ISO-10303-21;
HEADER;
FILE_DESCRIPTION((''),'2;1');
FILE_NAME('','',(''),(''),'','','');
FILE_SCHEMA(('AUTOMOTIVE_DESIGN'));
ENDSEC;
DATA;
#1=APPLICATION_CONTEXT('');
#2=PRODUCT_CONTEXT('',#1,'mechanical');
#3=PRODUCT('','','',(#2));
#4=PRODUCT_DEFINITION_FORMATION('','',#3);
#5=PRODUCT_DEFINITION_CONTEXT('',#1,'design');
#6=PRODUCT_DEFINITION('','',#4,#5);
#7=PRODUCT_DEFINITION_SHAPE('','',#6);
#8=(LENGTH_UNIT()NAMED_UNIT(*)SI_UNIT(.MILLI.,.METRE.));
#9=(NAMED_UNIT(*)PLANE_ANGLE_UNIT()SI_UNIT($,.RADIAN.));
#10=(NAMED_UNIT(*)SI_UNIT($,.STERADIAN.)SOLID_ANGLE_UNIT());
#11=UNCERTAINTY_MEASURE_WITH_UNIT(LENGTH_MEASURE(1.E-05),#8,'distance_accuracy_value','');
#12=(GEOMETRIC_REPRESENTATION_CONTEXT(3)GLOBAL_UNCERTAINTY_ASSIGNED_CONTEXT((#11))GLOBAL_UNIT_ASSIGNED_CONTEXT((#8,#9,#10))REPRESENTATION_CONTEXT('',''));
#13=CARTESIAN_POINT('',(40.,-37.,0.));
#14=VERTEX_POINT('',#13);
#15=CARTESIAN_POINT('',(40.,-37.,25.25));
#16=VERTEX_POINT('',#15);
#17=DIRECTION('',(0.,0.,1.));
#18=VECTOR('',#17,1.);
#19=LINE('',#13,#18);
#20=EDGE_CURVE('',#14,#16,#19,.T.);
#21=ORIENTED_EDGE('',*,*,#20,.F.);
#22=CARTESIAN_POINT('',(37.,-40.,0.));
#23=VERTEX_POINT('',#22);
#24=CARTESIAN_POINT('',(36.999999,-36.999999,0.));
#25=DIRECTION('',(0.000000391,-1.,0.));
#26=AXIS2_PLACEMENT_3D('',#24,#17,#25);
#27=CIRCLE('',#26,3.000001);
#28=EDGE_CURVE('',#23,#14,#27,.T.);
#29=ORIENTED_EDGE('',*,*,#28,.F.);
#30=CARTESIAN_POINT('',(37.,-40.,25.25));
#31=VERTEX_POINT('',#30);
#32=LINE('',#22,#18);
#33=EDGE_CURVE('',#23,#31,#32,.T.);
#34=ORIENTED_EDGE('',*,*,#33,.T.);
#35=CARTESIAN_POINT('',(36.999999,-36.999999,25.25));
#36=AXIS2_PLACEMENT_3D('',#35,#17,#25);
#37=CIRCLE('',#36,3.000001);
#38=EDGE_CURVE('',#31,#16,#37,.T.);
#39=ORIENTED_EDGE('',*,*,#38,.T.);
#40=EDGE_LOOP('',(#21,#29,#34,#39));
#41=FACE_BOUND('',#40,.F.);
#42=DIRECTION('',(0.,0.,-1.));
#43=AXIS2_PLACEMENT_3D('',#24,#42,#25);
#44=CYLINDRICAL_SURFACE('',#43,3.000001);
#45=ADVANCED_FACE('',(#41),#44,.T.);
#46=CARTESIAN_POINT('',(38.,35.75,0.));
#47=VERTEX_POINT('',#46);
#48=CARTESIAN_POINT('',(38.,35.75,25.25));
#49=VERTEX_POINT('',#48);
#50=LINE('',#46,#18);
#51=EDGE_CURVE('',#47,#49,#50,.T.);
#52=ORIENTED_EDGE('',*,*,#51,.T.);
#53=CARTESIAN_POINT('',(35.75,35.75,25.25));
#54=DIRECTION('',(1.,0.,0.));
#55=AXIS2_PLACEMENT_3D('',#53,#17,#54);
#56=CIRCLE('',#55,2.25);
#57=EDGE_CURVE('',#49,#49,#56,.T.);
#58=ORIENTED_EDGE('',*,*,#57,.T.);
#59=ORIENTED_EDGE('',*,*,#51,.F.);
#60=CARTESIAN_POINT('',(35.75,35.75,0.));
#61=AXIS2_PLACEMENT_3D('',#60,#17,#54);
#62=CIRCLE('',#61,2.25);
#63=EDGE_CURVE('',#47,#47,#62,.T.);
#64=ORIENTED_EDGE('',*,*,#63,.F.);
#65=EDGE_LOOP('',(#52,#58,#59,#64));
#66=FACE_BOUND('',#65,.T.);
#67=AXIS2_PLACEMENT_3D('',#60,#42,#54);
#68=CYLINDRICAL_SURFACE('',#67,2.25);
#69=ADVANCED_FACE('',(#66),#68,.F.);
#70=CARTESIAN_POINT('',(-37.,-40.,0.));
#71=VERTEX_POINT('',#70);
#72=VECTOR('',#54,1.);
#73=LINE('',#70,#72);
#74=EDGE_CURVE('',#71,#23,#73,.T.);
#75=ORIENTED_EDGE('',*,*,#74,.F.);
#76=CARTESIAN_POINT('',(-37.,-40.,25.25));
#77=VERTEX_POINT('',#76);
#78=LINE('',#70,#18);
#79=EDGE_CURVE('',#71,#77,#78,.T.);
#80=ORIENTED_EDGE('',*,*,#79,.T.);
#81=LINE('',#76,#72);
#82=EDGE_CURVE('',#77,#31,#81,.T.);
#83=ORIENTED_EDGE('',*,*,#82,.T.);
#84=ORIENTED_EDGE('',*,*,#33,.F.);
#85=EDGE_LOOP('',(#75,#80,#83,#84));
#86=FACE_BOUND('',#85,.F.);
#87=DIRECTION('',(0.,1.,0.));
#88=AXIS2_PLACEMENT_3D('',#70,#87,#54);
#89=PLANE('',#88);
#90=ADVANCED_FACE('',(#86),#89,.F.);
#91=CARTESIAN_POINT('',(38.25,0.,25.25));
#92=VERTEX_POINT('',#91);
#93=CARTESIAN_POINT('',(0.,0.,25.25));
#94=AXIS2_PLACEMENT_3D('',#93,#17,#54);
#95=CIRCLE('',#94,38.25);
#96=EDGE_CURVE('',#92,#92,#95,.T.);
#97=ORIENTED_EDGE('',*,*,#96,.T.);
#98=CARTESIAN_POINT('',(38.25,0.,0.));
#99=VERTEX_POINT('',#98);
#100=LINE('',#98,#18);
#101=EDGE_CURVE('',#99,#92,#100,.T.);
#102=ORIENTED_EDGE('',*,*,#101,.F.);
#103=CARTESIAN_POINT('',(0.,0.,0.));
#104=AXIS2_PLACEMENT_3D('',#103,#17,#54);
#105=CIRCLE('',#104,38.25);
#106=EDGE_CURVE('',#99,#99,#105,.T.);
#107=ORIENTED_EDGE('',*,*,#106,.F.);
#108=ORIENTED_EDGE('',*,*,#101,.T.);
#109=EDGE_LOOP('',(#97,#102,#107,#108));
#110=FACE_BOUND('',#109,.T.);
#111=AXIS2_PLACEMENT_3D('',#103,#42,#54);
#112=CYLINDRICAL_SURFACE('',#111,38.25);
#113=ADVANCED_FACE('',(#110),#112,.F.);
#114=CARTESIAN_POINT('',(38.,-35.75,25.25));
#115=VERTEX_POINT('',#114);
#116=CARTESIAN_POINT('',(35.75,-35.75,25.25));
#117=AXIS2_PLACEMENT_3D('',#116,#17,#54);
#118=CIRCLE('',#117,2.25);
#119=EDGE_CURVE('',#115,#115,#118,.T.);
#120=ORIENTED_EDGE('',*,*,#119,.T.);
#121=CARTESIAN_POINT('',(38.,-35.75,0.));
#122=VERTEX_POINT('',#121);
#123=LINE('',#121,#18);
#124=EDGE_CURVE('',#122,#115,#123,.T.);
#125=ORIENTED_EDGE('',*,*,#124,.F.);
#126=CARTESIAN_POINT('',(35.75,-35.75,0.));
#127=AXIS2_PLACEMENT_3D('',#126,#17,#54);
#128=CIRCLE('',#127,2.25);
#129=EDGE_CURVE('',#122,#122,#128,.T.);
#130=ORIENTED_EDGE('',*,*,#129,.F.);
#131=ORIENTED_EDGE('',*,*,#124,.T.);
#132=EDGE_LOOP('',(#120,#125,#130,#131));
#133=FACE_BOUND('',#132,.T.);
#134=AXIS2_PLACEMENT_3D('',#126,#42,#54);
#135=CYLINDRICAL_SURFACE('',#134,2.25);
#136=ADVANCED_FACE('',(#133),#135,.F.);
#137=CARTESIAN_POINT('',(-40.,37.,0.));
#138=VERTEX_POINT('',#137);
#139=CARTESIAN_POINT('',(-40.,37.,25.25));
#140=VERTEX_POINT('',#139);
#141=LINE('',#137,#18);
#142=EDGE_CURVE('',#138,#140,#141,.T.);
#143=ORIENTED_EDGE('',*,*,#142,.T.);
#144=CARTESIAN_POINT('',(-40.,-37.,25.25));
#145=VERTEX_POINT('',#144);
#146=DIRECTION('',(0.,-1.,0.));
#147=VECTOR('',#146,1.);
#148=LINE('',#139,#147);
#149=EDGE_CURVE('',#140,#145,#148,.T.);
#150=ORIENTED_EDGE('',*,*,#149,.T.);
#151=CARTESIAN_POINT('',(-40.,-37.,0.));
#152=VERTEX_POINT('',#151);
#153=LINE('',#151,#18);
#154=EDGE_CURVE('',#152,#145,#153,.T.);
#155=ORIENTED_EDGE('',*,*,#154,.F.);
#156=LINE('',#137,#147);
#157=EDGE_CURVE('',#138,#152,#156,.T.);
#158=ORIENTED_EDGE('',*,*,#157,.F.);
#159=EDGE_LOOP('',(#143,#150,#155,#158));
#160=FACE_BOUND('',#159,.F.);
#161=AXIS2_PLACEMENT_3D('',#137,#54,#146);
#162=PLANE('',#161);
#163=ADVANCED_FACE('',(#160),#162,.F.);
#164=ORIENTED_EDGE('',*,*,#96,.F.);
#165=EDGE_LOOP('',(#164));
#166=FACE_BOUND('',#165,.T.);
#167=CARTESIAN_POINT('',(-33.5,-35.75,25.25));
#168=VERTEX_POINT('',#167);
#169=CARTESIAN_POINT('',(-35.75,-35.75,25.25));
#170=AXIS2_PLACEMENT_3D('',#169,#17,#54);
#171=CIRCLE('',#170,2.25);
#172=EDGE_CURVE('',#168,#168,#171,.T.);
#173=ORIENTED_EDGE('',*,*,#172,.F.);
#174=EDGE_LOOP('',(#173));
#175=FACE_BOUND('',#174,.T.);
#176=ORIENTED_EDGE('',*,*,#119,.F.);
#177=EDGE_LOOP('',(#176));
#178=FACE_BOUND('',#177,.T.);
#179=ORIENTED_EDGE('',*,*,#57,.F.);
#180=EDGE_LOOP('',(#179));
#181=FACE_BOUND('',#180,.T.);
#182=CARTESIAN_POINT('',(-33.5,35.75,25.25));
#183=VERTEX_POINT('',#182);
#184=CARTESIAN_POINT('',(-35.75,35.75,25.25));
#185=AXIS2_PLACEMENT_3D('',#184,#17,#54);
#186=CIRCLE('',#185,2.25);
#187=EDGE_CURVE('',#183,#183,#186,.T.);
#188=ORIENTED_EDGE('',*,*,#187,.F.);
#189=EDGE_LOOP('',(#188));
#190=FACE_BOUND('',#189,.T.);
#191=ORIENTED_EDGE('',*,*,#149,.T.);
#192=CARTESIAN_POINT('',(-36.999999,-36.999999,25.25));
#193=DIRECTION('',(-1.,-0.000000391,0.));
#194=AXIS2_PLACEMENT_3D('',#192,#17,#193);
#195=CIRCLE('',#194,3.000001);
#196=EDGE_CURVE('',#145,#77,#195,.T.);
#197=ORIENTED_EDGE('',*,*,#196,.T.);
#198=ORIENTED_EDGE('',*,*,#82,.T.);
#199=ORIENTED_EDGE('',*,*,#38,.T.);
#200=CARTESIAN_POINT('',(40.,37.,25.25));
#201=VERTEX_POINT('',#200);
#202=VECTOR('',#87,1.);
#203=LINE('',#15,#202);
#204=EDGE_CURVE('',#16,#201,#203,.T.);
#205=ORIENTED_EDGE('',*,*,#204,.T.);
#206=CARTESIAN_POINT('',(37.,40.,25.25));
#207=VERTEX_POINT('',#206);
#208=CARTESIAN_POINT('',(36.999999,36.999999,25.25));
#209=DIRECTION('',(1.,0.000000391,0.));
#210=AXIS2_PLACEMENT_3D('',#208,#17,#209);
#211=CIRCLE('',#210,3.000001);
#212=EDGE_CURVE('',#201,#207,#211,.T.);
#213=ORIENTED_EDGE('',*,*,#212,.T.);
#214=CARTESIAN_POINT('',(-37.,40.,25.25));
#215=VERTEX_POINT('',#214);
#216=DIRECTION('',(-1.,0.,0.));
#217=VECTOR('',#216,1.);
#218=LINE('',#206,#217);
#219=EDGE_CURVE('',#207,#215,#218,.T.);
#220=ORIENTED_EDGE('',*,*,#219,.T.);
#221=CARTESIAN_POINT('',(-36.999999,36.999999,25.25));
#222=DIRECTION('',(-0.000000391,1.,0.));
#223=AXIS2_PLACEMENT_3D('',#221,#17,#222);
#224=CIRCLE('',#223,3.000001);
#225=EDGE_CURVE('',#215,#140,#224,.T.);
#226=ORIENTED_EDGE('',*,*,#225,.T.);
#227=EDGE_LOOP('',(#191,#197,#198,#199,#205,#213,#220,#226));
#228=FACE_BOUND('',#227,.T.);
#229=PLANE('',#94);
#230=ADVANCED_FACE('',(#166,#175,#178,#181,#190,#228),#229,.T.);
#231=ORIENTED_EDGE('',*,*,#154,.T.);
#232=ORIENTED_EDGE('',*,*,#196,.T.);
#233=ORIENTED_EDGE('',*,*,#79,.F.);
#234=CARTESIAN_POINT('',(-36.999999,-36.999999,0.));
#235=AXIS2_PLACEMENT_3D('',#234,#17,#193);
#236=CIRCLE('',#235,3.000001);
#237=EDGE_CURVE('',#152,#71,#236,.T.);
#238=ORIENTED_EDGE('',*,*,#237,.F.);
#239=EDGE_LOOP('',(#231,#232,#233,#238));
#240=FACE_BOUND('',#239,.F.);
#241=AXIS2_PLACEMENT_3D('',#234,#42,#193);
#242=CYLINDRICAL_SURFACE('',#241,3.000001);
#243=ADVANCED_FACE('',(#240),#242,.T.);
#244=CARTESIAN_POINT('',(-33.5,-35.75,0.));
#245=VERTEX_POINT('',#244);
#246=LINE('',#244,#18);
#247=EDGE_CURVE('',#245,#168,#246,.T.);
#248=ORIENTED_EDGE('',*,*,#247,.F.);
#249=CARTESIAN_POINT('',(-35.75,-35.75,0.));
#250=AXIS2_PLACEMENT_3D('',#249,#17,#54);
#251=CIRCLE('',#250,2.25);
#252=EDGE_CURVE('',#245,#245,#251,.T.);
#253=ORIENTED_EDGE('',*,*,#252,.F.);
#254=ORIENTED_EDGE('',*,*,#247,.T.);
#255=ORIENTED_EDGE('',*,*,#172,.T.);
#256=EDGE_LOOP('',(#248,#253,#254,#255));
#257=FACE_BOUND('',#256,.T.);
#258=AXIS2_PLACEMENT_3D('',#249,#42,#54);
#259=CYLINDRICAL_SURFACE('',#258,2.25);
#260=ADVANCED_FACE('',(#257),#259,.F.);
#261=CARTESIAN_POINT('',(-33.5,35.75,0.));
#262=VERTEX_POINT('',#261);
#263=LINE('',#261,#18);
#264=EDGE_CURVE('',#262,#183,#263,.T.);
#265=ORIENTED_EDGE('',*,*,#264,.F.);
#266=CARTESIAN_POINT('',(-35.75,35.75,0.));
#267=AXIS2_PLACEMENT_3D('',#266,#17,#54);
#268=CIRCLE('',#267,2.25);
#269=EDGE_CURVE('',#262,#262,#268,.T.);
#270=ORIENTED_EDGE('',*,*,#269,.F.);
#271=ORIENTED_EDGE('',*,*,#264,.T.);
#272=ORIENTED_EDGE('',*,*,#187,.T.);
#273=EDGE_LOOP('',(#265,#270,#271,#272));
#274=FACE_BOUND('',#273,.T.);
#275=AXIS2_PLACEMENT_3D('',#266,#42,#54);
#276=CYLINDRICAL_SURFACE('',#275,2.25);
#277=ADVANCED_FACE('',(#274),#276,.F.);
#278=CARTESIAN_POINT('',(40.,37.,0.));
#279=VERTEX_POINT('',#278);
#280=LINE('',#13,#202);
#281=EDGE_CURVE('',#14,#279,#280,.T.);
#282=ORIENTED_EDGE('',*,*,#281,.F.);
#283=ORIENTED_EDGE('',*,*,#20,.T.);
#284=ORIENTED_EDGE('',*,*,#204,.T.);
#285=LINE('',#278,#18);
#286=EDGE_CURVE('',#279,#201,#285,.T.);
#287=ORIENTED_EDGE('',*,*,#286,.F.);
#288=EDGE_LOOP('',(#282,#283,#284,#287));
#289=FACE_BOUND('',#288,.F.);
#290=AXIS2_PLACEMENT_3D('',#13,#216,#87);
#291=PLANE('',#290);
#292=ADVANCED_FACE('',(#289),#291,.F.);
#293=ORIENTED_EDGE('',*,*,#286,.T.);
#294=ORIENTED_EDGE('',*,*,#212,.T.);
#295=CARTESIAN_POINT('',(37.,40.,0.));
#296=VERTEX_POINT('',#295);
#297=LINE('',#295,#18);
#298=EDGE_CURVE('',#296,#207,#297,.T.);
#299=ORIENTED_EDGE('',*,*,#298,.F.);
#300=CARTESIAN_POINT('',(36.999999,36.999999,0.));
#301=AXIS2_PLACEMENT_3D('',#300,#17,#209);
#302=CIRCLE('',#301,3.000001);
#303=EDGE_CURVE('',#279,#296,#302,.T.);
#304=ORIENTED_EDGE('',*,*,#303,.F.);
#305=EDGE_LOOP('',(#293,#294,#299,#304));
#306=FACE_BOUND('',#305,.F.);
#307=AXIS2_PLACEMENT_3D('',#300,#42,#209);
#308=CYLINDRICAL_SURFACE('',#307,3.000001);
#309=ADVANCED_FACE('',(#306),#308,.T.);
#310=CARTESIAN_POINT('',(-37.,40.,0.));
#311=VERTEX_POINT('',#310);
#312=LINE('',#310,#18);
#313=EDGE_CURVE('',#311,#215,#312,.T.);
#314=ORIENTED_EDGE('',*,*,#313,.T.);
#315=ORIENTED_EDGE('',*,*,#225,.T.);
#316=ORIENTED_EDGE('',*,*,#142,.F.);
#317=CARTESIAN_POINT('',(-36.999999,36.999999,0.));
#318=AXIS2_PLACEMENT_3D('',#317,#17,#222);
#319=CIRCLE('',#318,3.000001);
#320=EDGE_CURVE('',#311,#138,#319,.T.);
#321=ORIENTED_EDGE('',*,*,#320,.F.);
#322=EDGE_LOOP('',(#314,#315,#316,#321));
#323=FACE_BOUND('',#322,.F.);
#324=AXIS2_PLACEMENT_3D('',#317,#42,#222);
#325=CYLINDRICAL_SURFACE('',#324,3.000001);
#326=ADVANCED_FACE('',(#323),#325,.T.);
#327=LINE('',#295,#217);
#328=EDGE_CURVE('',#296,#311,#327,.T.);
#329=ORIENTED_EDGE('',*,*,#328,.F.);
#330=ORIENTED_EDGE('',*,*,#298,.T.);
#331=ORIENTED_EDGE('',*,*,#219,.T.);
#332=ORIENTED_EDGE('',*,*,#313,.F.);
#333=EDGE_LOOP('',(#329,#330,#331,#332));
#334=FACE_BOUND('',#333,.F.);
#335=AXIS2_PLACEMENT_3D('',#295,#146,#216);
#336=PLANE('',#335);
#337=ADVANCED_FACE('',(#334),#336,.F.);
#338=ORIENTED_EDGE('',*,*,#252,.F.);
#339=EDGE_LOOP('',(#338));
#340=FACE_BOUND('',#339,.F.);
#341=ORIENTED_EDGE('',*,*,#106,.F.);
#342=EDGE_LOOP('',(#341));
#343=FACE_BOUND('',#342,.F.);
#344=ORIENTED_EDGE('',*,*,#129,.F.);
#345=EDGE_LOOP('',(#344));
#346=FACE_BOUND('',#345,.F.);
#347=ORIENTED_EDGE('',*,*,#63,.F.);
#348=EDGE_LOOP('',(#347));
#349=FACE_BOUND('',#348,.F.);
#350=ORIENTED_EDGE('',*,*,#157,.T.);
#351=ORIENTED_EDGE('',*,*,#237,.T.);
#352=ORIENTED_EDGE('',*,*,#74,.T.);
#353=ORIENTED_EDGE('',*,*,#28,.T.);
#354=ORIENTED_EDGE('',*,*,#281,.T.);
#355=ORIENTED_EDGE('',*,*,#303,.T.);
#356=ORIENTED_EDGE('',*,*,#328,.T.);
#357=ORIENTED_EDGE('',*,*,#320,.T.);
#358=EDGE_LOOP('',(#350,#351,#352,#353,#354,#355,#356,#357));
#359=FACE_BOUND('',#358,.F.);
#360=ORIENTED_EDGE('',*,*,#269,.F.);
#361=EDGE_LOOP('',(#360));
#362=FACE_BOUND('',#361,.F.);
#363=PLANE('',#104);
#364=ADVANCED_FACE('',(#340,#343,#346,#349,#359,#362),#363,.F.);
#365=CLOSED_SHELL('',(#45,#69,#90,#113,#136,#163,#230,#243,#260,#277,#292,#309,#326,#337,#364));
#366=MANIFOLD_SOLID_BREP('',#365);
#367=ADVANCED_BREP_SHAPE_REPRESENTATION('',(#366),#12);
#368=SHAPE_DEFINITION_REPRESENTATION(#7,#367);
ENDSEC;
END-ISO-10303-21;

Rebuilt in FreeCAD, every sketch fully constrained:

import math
import FreeCAD as App
import Part
import Sketcher

doc = App.newDocument("Part")
body = doc.addObject("PartDesign::Body", "Body")

# Sketch on XY plane
sketch1 = doc.addObject("Sketcher::SketchObject", "Sketch")
body.addObject(sketch1)
sketch1.AttachmentSupport = (doc.XY_Plane, [""])
sketch1.MapMode = "FlatFace"
sketch1.addGeometry(Part.LineSegment(App.Vector(-37, -40, 0), App.Vector(37, -40, 0)), False)
sketch1.addGeometry(Part.ArcOfCircle(Part.Circle(App.Vector(37, -37, 0), App.Vector(0, 0, 1), 3), math.radians(-90), math.radians(0)), False)
sketch1.addGeometry(Part.LineSegment(App.Vector(40, -37, 0), App.Vector(40, 37, 0)), False)
sketch1.addGeometry(Part.ArcOfCircle(Part.Circle(App.Vector(37, 37, 0), App.Vector(0, 0, 1), 3), math.radians(0), math.radians(90)), False)
sketch1.addGeometry(Part.LineSegment(App.Vector(37, 40, 0), App.Vector(-37, 40, 0)), False)
sketch1.addGeometry(Part.ArcOfCircle(Part.Circle(App.Vector(-37, 37, 0), App.Vector(0, 0, 1), 3), math.radians(90), math.radians(180)), False)
sketch1.addGeometry(Part.LineSegment(App.Vector(-40, 37, 0), App.Vector(-40, -37, 0)), False)
sketch1.addGeometry(Part.ArcOfCircle(Part.Circle(App.Vector(-37, -37, 0), App.Vector(0, 0, 1), 3), math.radians(-180), math.radians(-90)), False)
sketch1.addGeometry(Part.Circle(App.Vector(-35.8, -35.8, 0), App.Vector(0, 0, 1), 2.2), False)
sketch1.addGeometry(Part.Circle(App.Vector(35.8, -35.8, 0), App.Vector(0, 0, 1), 2.2), False)
sketch1.addGeometry(Part.Circle(App.Vector(-35.8, 35.8, 0), App.Vector(0, 0, 1), 2.2), False)
sketch1.addGeometry(Part.Circle(App.Vector(0, 0, 0), App.Vector(0, 0, 1), 38.2), False)
sketch1.addGeometry(Part.Circle(App.Vector(35.8, 35.8, 0), App.Vector(0, 0, 1), 2.2), False)
sketch1.addConstraint(Sketcher.Constraint("Tangent", 0, 2, 1, 1))
sketch1.addConstraint(Sketcher.Constraint("Tangent", 1, 2, 2, 1))
sketch1.addConstraint(Sketcher.Constraint("Tangent", 2, 2, 3, 1))
sketch1.addConstraint(Sketcher.Constraint("Tangent", 3, 2, 4, 1))
sketch1.addConstraint(Sketcher.Constraint("Tangent", 4, 2, 5, 1))
sketch1.addConstraint(Sketcher.Constraint("Tangent", 5, 2, 6, 1))
sketch1.addConstraint(Sketcher.Constraint("Tangent", 6, 2, 7, 1))
sketch1.addConstraint(Sketcher.Constraint("Tangent", 7, 2, 0, 1))
sketch1.addConstraint(Sketcher.Constraint("Horizontal", 0))
sketch1.addConstraint(Sketcher.Constraint("Vertical", 2))
sketch1.addConstraint(Sketcher.Constraint("Horizontal", 4))
sketch1.addConstraint(Sketcher.Constraint("Vertical", 6))
sketch1.addConstraint(Sketcher.Constraint("Coincident", 11, 3, -1, 1))
sketch1.addConstraint(Sketcher.Constraint("Equal", 1, 3))
sketch1.addConstraint(Sketcher.Constraint("Equal", 3, 5))
sketch1.addConstraint(Sketcher.Constraint("Equal", 5, 7))
sketch1.addConstraint(Sketcher.Constraint("Equal", 8, 9))
sketch1.addConstraint(Sketcher.Constraint("Equal", 9, 10))
sketch1.addConstraint(Sketcher.Constraint("Equal", 10, 12))
sketch1.addConstraint(Sketcher.Constraint("Symmetric", 1, 3, 5, 3, -1, 1))
sketch1.addConstraint(Sketcher.Constraint("Symmetric", 9, 3, 10, 3, -1, 1))
sketch1.addConstraint(Sketcher.Constraint("Symmetric", 8, 3, 12, 3, -1, 1))
sketch1.addConstraint(Sketcher.Constraint("Symmetric", 8, 3, 9, 3, -2))
sketch1.addConstraint(Sketcher.Constraint("Equal", 4, 2))
sketch1.addConstraint(Sketcher.Constraint("Radius", 1, 3.000001))
sketch1.addConstraint(Sketcher.Constraint("Diameter", 8, 4.5))
sketch1.addConstraint(Sketcher.Constraint("Diameter", 11, 76.5))
sketch1.addConstraint(Sketcher.Constraint("DistanceX", 0, 1, 0, 2, 74.0))
sketch1.addConstraint(Sketcher.Constraint("DistanceX", 8, 3, 9, 3, 71.5))
sketch1.addConstraint(Sketcher.Constraint("DistanceY", 8, 3, 10, 3, 71.5))
pad1 = doc.addObject("PartDesign::Pad", "Pad")
body.addObject(pad1)
pad1.Profile = sketch1
pad1.Length = 25.25
body2 = doc.addObject("PartDesign::Body", "Body001")

# Sketch on XY plane
sketch2 = doc.addObject("Sketcher::SketchObject", "Sketch001")
body2.addObject(sketch2)
sketch2.AttachmentSupport = (doc.getObject("XY_Plane001"), [""])
sketch2.MapMode = "FlatFace"
sketch2.addGeometry(Part.Circle(App.Vector(0, 0, 0), App.Vector(0, 0, 1), 16), False)
sketch2.addConstraint(Sketcher.Constraint("Coincident", 0, 3, -1, 1))
sketch2.addConstraint(Sketcher.Constraint("Diameter", 0, 33.0))
pad2 = doc.addObject("PartDesign::Pad", "Pad001")
body2.addObject(pad2)
pad2.Profile = sketch2
pad2.Length = 25.25
body2.Visibility = False

doc.recompute()
